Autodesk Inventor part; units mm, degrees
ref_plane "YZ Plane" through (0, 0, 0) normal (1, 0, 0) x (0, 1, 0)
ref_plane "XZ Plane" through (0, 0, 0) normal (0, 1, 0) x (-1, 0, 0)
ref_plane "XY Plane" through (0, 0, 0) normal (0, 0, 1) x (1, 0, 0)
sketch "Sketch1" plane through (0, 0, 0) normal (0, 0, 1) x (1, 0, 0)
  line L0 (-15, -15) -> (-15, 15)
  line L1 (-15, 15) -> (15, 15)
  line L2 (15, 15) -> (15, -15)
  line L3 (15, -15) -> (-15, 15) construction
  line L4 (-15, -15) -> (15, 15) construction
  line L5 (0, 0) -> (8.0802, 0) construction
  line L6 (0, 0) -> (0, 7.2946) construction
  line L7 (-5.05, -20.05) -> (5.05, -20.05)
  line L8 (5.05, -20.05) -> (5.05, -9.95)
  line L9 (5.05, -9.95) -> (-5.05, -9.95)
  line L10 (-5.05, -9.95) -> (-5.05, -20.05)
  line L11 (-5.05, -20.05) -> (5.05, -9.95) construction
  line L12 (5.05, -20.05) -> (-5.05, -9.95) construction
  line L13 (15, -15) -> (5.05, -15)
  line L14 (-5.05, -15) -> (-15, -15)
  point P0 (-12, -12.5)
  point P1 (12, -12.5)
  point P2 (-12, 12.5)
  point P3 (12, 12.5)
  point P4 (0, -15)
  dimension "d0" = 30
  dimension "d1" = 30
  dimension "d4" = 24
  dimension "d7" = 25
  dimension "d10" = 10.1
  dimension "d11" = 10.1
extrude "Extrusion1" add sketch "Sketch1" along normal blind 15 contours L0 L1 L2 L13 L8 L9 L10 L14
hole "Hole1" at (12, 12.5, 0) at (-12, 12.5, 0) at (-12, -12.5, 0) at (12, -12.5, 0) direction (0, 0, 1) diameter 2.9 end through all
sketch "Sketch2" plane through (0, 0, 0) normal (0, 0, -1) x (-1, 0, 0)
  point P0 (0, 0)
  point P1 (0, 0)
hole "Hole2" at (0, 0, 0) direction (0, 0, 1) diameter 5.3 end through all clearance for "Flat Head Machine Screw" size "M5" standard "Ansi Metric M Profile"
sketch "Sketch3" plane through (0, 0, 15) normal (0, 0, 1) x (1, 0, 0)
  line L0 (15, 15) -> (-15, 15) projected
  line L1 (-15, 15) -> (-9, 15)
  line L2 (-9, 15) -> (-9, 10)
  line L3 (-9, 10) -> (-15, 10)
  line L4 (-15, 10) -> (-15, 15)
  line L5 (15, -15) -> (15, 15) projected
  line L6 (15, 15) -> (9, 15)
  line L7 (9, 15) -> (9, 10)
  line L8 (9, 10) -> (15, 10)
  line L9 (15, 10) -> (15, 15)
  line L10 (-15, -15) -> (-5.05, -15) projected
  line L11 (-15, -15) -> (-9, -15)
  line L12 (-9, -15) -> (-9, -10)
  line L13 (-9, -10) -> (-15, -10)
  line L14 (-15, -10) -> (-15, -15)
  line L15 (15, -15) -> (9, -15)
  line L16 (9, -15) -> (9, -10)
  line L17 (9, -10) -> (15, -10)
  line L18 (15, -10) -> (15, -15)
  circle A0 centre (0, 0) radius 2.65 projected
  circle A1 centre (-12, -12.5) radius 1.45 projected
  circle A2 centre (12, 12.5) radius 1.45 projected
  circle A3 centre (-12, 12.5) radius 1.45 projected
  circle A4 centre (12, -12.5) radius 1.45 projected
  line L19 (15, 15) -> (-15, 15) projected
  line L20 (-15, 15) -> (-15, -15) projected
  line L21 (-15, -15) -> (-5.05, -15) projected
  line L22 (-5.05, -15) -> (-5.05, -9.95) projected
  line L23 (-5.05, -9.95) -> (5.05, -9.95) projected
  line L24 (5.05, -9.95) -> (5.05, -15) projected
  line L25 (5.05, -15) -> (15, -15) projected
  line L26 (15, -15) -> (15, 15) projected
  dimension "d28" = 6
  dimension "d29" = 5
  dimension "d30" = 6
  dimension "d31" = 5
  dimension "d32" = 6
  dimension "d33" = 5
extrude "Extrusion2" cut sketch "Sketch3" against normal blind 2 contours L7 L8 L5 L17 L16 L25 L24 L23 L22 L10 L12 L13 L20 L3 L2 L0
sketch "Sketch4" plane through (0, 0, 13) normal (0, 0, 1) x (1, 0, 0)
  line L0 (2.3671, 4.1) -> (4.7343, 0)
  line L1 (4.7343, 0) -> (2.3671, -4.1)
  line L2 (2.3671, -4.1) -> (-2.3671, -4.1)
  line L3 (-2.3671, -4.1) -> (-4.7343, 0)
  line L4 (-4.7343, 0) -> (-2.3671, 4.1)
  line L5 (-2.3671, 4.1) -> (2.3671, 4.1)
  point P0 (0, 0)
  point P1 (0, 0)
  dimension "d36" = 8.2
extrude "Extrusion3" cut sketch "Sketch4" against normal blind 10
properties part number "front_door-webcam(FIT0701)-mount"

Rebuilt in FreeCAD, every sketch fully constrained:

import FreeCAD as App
import Part
import Sketcher

V = App.Vector
Q = App.Units.Quantity


def add_polygon(sketch, points):
    """Adds a closed chain of lines whose ends are joined by coincident constraints."""
    first, n = sketch.GeometryCount, len(points)
    for a, b in zip(points, points[1:] + points[:1]):
        sketch.addGeometry(Part.LineSegment(App.Vector(*a, 0), App.Vector(*b, 0)), False)
    for i in range(n):
        sketch.addConstraint(Sketcher.Constraint("Coincident", first + i, 2, first + (i + 1) % n, 1))

doc = App.newDocument("Part")
body = doc.addObject("PartDesign::Body", "Body")

# Sketch on XY plane
sketch1 = body.newObject("Sketcher::SketchObject", "Sketch")
sketch1.AttachmentSupport = (doc.getObject("XY_Plane"), [""])
sketch1.MapMode = "FlatFace"
add_polygon(sketch1, [(-15, 15), (-15, -15), (-5, -15), (-5, -10), (5, -10), (5, -15), (15, -15), (15, 15)])  # lines 0-7
sketch1.addConstraint([
    Sketcher.Constraint("Vertical", 0),
    Sketcher.Constraint("Horizontal", 1),
    Sketcher.Constraint("Vertical", 2),
    Sketcher.Constraint("Horizontal", 3),
    Sketcher.Constraint("Vertical", 4),
    Sketcher.Constraint("Horizontal", 5),
    Sketcher.Constraint("Vertical", 6),
    Sketcher.Constraint("Horizontal", 7),
    Sketcher.Constraint("Symmetric", 0, 2, 6, 2, -1, 1),
    Sketcher.Constraint("Symmetric", 1, 2, 4, 2, -2),
    Sketcher.Constraint("Equal", 7, 0),
    Sketcher.Constraint("DistanceX", 7, 2, 7, 1, Q("30 mm")),
    Sketcher.Constraint("DistanceX", 3, 1, 3, 2, Q("10.1 mm")),
    Sketcher.Constraint("DistanceY", 2, 1, 2, 2, Q("5.05 mm")),
])
pad1 = body.newObject("PartDesign::Pad", "Pad")
pad1.Profile = sketch1
pad1.Length = 15

# Sketch on XY plane
sketch2 = body.newObject("Sketcher::SketchObject", "Sketch001")
sketch2.AttachmentSupport = (doc.getObject("XY_Plane"), [""])
sketch2.MapMode = "FlatFace"
sketch2.addGeometry([
    Part.Circle(V(12, 12.5, 0), V(0, 0, 1), 1.4),
    Part.Circle(V(-12, 12.5, 0), V(0, 0, 1), 1.4),
    Part.Circle(V(-12, -12.5, 0), V(0, 0, 1), 1.4),
    Part.Circle(V(12, -12.5, 0), V(0, 0, 1), 1.4),
], False)
sketch2.addConstraint([
    Sketcher.Constraint("Equal", 0, 1),
    Sketcher.Constraint("Equal", 1, 2),
    Sketcher.Constraint("Equal", 2, 3),
    Sketcher.Constraint("Symmetric", 0, 3, 2, 3, -1, 1),
    Sketcher.Constraint("Symmetric", 1, 3, 3, 3, -1, 1),
    Sketcher.Constraint("Symmetric", 0, 3, 1, 3, -2),
    Sketcher.Constraint("Diameter", 0, Q("2.9 mm")),
    Sketcher.Constraint("DistanceX", -1, 1, 0, 3, Q("12 mm")),
    Sketcher.Constraint("DistanceY", 2, 3, 1, 3, Q("25 mm")),
])
doc.recompute()
hole = body.newObject("PartDesign::Hole", "Hole")
hole.Profile = sketch2
hole.ThreadType = "None"
hole.Diameter = 2.9
hole.DepthType = "ThroughAll"
hole.Reversed = True

# Sketch on XY plane
sketch3 = body.newObject("Sketcher::SketchObject", "Sketch002")
sketch3.AttachmentSupport = (doc.getObject("XY_Plane"), [""])
sketch3.MapMode = "FlatFace"
sketch3.addGeometry(Part.Circle(V(0, 0, 0), V(0, 0, 1), 2.6), False)
sketch3.addConstraint([
    Sketcher.Constraint("Coincident", 0, 3, -1, 1),
    Sketcher.Constraint("Diameter", 0, Q("5.3 mm")),
])
doc.recompute()
hole2 = body.newObject("PartDesign::Hole", "Hole001")
hole2.Profile = sketch3
hole2.ThreadType = "None"
hole2.Diameter = 5.3
hole2.DepthType = "ThroughAll"
hole2.Reversed = True

# Sketch on XY plane
sketch4 = body.newObject("Sketcher::SketchObject", "Sketch003")
sketch4.AttachmentSupport = (doc.getObject("XY_Plane"), [""])
sketch4.MapMode = "FlatFace"
sketch4.AttachmentOffset = App.Placement(V(0, 0, 15), App.Rotation())
add_polygon(sketch4, [(9, 10), (9, 15), (-9, 15), (-9, 10), (-15, 10), (-15, -10), (-9, -10), (-9, -15), (-5, -15), (-5, -9.9), (5, -9.9), (5, -15), (9, -15), (9, -10), (15, -10), (15, 10)])  # lines 0-15
sketch4.addGeometry(Part.Circle(V(0, 0, 0), V(0, 0, 1), 2.6), False)  # 16
sketch4.addConstraint([
    Sketcher.Constraint("Vertical", 0),
    Sketcher.Constraint("Horizontal", 1),
    Sketcher.Constraint("Vertical", 2),
    Sketcher.Constraint("Horizontal", 3),
    Sketcher.Constraint("Vertical", 4),
    Sketcher.Constraint("Horizontal", 5),
    Sketcher.Constraint("Vertical", 6),
    Sketcher.Constraint("Horizontal", 7),
    Sketcher.Constraint("Vertical", 8),
    Sketcher.Constraint("Horizontal", 9),
    Sketcher.Constraint("Vertical", 10),
    Sketcher.Constraint("Horizontal", 11),
    Sketcher.Constraint("Vertical", 12),
    Sketcher.Constraint("Horizontal", 13),
    Sketcher.Constraint("Vertical", 14),
    Sketcher.Constraint("Horizontal", 15),
    Sketcher.Constraint("Coincident", 16, 3, -1, 1),
    Sketcher.Constraint("Symmetric", 0, 2, 6, 2, -1, 1),
    Sketcher.Constraint("Symmetric", 1, 2, 11, 2, -1, 1),
    Sketcher.Constraint("Symmetric", 3, 2, 13, 2, -1, 1),
    Sketcher.Constraint("Symmetric", 5, 2, 12, 2, -2),
    Sketcher.Constraint("Horizontal", 3, 2, 14, 2),
    Sketcher.Constraint("Equal", 7, 11),
    Sketcher.Constraint("DistanceX", 3, 2, 3, 1, Q("6 mm")),
    Sketcher.Constraint("DistanceY", 0, 1, 0, 2, Q("5 mm")),
    Sketcher.Constraint("Diameter", 16, Q("5.3 mm")),
    Sketcher.Constraint("DistanceX", 1, 2, 1, 1, Q("18 mm")),
    Sketcher.Constraint("DistanceY", 4, 2, 4, 1, Q("20 mm")),
    Sketcher.Constraint("DistanceX", 9, 1, 9, 2, Q("10.1 mm")),
    Sketcher.Constraint("DistanceY", 8, 1, 8, 2, Q("5.05 mm")),
])
pocket1 = body.newObject("PartDesign::Pocket", "Pocket")
pocket1.Profile = sketch4
pocket1.Length = 2

# Sketch on XY plane
sketch5 = body.newObject("Sketcher::SketchObject", "Sketch004")
sketch5.AttachmentSupport = (doc.getObject("XY_Plane"), [""])
sketch5.MapMode = "FlatFace"
sketch5.AttachmentOffset = App.Placement(V(0, 0, 13), App.Rotation())
add_polygon(sketch5, [(4.7, 0), (2.4, 4.1), (-2.4, 4.1), (-4.7, 0), (-2.4, -4.1), (2.4, -4.1)])  # lines 0-5
sketch5.addConstraint([
    Sketcher.Constraint("Horizontal", 1),
    Sketcher.Constraint("Horizontal", 4),
    Sketcher.Constraint("Symmetric", 0, 2, 3, 2, -1, 1),
    Sketcher.Constraint("Symmetric", 2, 2, 5, 2, -1, 1),
    Sketcher.Constraint("PointOnObject", 2, 2, -1),
    Sketcher.Constraint("Parallel", 2, 5),
    Sketcher.Constraint("Vertical", 1, 2, 3, 2),
    Sketcher.Constraint("DistanceY", 3, 2, 1, 2, Q("8.2 mm")),
    Sketcher.Constraint("Angle", 0, Q("120.0007 deg")),
    Sketcher.Constraint("DistanceX", 1, 2, 1, 1, Q("4.7342 mm")),
])
pocket2 = body.newObject("PartDesign::Pocket", "Pocket001")
pocket2.Profile = sketch5
pocket2.Length = 10

doc.recompute()
